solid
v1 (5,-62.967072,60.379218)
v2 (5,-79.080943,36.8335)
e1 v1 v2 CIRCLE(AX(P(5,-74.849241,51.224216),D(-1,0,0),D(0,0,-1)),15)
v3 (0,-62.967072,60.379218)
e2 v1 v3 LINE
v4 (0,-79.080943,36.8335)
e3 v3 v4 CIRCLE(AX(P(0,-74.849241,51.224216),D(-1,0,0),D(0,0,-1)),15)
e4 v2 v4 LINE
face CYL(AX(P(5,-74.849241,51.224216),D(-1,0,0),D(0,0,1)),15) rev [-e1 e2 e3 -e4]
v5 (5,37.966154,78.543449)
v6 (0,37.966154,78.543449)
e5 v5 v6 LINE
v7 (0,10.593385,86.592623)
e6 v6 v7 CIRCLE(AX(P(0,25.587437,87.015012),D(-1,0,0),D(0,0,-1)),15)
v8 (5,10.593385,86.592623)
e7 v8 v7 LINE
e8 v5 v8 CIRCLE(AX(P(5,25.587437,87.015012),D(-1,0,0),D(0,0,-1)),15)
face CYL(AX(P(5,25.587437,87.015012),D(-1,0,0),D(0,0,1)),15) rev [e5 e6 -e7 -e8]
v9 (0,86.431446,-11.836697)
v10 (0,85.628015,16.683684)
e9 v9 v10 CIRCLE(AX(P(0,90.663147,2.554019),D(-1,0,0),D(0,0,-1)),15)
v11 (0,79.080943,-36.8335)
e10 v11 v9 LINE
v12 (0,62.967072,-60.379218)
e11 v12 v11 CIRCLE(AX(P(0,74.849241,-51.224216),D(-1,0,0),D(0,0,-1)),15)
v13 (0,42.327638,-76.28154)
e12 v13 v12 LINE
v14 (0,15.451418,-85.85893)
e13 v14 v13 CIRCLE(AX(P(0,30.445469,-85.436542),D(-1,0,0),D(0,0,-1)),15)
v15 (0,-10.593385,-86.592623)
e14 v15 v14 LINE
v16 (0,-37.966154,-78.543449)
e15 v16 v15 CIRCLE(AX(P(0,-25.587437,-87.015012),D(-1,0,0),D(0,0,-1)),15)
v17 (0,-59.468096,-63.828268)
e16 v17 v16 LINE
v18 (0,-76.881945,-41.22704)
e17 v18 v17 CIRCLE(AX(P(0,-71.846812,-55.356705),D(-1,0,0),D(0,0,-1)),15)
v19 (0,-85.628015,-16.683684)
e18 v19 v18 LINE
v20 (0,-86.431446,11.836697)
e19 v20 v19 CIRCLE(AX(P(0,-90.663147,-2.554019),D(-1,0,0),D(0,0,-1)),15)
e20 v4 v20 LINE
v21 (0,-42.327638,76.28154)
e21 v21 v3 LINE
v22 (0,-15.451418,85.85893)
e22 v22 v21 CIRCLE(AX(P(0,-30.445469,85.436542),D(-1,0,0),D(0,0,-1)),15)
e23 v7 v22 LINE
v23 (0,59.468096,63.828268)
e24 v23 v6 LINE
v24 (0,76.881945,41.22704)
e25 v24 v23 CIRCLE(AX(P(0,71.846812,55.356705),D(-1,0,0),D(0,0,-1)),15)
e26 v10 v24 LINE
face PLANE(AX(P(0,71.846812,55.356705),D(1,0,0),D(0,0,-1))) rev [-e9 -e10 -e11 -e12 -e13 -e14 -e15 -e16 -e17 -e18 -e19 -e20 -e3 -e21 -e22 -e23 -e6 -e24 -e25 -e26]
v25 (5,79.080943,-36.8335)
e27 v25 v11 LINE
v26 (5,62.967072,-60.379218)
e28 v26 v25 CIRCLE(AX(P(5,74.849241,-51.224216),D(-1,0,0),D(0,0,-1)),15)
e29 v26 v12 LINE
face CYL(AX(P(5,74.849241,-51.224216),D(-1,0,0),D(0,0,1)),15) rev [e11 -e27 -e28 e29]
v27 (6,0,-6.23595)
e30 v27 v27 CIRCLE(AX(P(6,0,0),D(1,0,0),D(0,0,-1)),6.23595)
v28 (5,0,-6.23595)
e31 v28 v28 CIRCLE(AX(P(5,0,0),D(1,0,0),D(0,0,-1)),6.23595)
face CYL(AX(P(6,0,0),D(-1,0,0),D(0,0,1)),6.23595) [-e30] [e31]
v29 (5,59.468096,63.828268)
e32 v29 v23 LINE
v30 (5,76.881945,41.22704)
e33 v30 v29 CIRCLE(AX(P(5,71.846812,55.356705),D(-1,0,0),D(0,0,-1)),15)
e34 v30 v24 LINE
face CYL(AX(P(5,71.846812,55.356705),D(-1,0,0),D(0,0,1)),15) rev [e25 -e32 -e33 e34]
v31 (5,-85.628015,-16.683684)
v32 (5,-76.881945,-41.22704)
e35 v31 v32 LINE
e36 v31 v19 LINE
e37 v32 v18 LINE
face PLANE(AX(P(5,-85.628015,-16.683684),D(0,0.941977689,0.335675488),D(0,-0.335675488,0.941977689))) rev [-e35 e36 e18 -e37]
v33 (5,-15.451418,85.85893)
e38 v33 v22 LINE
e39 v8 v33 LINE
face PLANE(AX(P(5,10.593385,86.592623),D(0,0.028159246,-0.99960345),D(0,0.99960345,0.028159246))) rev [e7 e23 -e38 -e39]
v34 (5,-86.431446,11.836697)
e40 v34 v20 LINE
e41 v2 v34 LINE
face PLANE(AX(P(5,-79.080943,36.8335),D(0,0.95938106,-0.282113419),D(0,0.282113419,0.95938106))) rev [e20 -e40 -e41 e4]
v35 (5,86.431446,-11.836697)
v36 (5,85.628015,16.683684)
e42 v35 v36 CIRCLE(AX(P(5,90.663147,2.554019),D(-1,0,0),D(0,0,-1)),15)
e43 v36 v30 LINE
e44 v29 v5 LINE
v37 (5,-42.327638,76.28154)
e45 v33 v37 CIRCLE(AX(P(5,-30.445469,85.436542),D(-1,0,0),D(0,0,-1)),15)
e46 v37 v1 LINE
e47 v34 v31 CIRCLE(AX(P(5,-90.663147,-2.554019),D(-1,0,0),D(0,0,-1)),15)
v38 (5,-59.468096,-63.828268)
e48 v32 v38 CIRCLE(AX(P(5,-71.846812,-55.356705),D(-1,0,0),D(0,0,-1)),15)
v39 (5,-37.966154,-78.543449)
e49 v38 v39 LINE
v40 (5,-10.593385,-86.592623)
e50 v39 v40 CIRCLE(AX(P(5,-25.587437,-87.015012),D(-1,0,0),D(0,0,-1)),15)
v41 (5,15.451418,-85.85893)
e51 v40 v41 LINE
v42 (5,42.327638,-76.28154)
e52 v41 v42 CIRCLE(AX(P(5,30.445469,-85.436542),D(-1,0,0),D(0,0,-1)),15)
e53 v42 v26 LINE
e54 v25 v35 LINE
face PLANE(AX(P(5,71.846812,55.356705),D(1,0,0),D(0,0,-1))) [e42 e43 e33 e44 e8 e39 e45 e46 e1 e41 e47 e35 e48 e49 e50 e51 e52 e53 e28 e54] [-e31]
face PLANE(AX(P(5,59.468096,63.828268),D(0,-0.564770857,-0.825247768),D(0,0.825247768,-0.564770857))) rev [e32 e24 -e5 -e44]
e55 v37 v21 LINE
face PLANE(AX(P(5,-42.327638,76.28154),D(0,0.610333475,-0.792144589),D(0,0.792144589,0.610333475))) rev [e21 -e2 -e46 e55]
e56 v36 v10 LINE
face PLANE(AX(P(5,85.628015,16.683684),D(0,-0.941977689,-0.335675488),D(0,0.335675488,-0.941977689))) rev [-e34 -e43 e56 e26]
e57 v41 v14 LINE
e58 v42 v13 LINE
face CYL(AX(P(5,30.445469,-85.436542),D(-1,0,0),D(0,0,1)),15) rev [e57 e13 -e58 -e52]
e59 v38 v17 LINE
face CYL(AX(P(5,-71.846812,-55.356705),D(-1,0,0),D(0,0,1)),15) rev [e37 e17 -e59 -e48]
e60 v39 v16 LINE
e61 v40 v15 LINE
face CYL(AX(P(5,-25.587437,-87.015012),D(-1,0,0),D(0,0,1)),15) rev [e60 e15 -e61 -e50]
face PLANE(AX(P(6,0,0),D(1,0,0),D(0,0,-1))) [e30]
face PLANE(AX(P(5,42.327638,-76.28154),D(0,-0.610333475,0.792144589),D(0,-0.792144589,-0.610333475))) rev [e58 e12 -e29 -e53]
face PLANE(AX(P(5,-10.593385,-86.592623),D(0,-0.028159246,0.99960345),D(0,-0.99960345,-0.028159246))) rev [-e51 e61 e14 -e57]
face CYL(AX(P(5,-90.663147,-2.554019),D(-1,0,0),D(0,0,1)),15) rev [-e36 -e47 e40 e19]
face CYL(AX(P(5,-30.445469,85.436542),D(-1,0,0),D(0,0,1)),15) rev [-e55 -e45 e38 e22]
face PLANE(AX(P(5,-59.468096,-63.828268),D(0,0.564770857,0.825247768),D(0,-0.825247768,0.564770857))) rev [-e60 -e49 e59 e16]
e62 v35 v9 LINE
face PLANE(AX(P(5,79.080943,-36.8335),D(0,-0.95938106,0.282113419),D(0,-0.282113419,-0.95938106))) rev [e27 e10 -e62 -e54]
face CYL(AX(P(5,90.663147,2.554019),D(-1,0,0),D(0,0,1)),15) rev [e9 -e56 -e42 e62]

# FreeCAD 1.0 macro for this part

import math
import FreeCAD as App
import Part
import Sketcher
from FreeCAD import Vector

doc = App.newDocument("Part")
body = doc.addObject("PartDesign::Body", "Body")

sketch1 = body.newObject("Sketcher::SketchObject", "Sketch")
sketch1.AttachmentSupport = (doc.getObject("YZ_Plane"), [""])
sketch1.MapMode = "FlatFace"
sketch1.addGeometry([
    Part.LineSegment(Vector(-86, -17, 0), Vector(-77, -41, 0)),
    Part.ArcOfCircle(Part.Circle(Vector(-72, -55, 0), Vector(0, 0, 1), 15), math.radians(-34), math.radians(110)),
    Part.LineSegment(Vector(-59, -64, 0), Vector(-38, -79, 0)),
    Part.ArcOfCircle(Part.Circle(Vector(-26, -87, 0), Vector(0, 0, 1), 15), math.radians(2), math.radians(146)),
    Part.LineSegment(Vector(-11, -87, 0), Vector(15, -86, 0)),
    Part.ArcOfCircle(Part.Circle(Vector(30, -85, 0), Vector(0, 0, 1), 15), math.radians(38), math.radians(182)),
    Part.LineSegment(Vector(42, -76, 0), Vector(63, -60, 0)),
    Part.ArcOfCircle(Part.Circle(Vector(75, -51, 0), Vector(0, 0, 1), 15), math.radians(74), math.radians(218)),
    Part.LineSegment(Vector(79, -37, 0), Vector(86, -12, 0)),
    Part.ArcOfCircle(Part.Circle(Vector(91, 3, 0), Vector(0, 0, 1), 15), math.radians(110), math.radians(254)),
    Part.LineSegment(Vector(86, 17, 0), Vector(77, 41, 0)),
    Part.ArcOfCircle(Part.Circle(Vector(72, 55, 0), Vector(0, 0, 1), 15), math.radians(146), math.radians(290)),
    Part.LineSegment(Vector(59, 64, 0), Vector(38, 79, 0)),
    Part.ArcOfCircle(Part.Circle(Vector(26, 87, 0), Vector(0, 0, 1), 15), math.radians(-178), math.radians(-34)),
    Part.LineSegment(Vector(11, 87, 0), Vector(-15, 86, 0)),
    Part.ArcOfCircle(Part.Circle(Vector(-30, 85, 0), Vector(0, 0, 1), 15), math.radians(-142), math.radians(2)),
    Part.LineSegment(Vector(-42, 76, 0), Vector(-63, 60, 0)),
    Part.ArcOfCircle(Part.Circle(Vector(-75, 51, 0), Vector(0, 0, 1), 15), math.radians(-106), math.radians(38)),
    Part.LineSegment(Vector(-79, 37, 0), Vector(-86, 12, 0)),
    Part.ArcOfCircle(Part.Circle(Vector(-91, -3, 0), Vector(0, 0, 1), 15), math.radians(-70), math.radians(74)),
], False)
sketch1.addConstraint([
    Sketcher.Constraint("Coincident", 0, 2, 1, 2),
    Sketcher.Constraint("Coincident", 1, 1, 2, 1),
    Sketcher.Constraint("Coincident", 2, 2, 3, 2),
    Sketcher.Constraint("Coincident", 3, 1, 4, 1),
    Sketcher.Constraint("Coincident", 4, 2, 5, 2),
    Sketcher.Constraint("Coincident", 5, 1, 6, 1),
    Sketcher.Constraint("Coincident", 6, 2, 7, 2),
    Sketcher.Constraint("Coincident", 7, 1, 8, 1),
    Sketcher.Constraint("Coincident", 8, 2, 9, 2),
    Sketcher.Constraint("Coincident", 9, 1, 10, 1),
    Sketcher.Constraint("Coincident", 10, 2, 11, 2),
    Sketcher.Constraint("Coincident", 11, 1, 12, 1),
    Sketcher.Constraint("Coincident", 12, 2, 13, 2),
    Sketcher.Constraint("Coincident", 13, 1, 14, 1),
    Sketcher.Constraint("Coincident", 14, 2, 15, 2),
    Sketcher.Constraint("Coincident", 15, 1, 16, 1),
    Sketcher.Constraint("Coincident", 16, 2, 17, 2),
    Sketcher.Constraint("Coincident", 17, 1, 18, 1),
    Sketcher.Constraint("Coincident", 18, 2, 19, 2),
    Sketcher.Constraint("Coincident", 19, 1, 0, 1),
    Sketcher.Constraint("Equal", 1, 3),
    Sketcher.Constraint("Equal", 3, 5),
    Sketcher.Constraint("Equal", 5, 7),
    Sketcher.Constraint("Equal", 7, 9),
    Sketcher.Constraint("Equal", 9, 11),
    Sketcher.Constraint("Equal", 11, 13),
    Sketcher.Constraint("Equal", 13, 15),
    Sketcher.Constraint("Equal", 15, 17),
    Sketcher.Constraint("Equal", 17, 19),
    Sketcher.Constraint("Symmetric", 1, 3, 11, 3, -1, 1),
    Sketcher.Constraint("Symmetric", 3, 3, 13, 3, -1, 1),
    Sketcher.Constraint("Symmetric", 5, 3, 15, 3, -1, 1),
    Sketcher.Constraint("Symmetric", 7, 3, 17, 3, -1, 1),
    Sketcher.Constraint("Symmetric", 9, 3, 19, 3, -1, 1),
    Sketcher.Constraint("Parallel", 0, 10),
    Sketcher.Constraint("Parallel", 2, 12),
    Sketcher.Constraint("Parallel", 4, 14),
    Sketcher.Constraint("Parallel", 6, 16),
    Sketcher.Constraint("Parallel", 8, 18),
    Sketcher.Constraint("Equal", 0, 2),
    Sketcher.Constraint("Equal", 2, 4),
    Sketcher.Constraint("Equal", 4, 6),
    Sketcher.Constraint("Equal", 6, 8),
    Sketcher.Constraint("Radius", 1, 15.0),
    Sketcher.Constraint("DistanceY", 7, 1, -1, 1, 36.8335),
    Sketcher.Constraint("DistanceY", -1, 1, 17, 1, 36.8335),
    Sketcher.Constraint("DistanceY", 5, 3, 0, 2, 44.209502),
    Sketcher.Constraint("DistanceX", 7, 3, 7, 1, 4.231701),
    Sketcher.Constraint("DistanceX", 8, 2, 9, 3, 4.231701),
    Sketcher.Constraint("DistanceY", 7, 3, 9, 1, 67.9079),
    Sketcher.Constraint("DistanceX", 10, 2, 8, 2, 9.549501),
    Sketcher.Constraint("DistanceX", 18, 2, 0, 2, 9.549501),
    Sketcher.Constraint("DistanceY", 3, 3, -1, 1, 87.015012),
    Sketcher.Constraint("DistanceX", -1, 1, 5, 3, 30.445469),
    Sketcher.Constraint("DistanceY", 5, 3, -1, 1, 85.436542),
    Sketcher.Constraint("DistanceX", -1, 1, 7, 3, 74.849241),
    Sketcher.Constraint("DistanceY", 1, 1, -1, 1, 63.828268),
    Sketcher.Constraint("DistanceY", 2, 2, -1, 1, 78.543449),
    Sketcher.Constraint("DistanceY", 4, 2, -1, 1, 85.85893),
    Sketcher.Constraint("DistanceX", -1, 1, 5, 1, 42.327638),
    Sketcher.Constraint("DistanceY", 6, 2, -1, 1, 60.379218),
    Sketcher.Constraint("DistanceY", -1, 1, 11, 1, 63.828268),
    Sketcher.Constraint("DistanceY", -1, 1, 14, 2, 85.85893),
    Sketcher.Constraint("DistanceX", 15, 1, -1, 1, 42.327638),
    Sketcher.Constraint("DistanceX", 3, 3, 3, 1, 14.994052),
])
pad1 = body.newObject("PartDesign::Pad", "Pad")
pad1.Profile = sketch1
pad1.Length = 5

sketch2 = body.newObject("Sketcher::SketchObject", "Sketch001")
sketch2.AttachmentSupport = (doc.getObject("YZ_Plane"), [""])
sketch2.MapMode = "FlatFace"
sketch2.AttachmentOffset = App.Placement(Vector(0, 0, 5), App.Rotation())
sketch2.addGeometry(Part.Circle(Vector(0, 0, 0), Vector(0, 0, 1), 6), False)
sketch2.addConstraint([
    Sketcher.Constraint("Coincident", 0, 3, -1, 1),
    Sketcher.Constraint("Diameter", 0, 12.4719),
])
pad2 = body.newObject("PartDesign::Pad", "Pad001")
pad2.Profile = sketch2
pad2.Length = 1

doc.recompute()
